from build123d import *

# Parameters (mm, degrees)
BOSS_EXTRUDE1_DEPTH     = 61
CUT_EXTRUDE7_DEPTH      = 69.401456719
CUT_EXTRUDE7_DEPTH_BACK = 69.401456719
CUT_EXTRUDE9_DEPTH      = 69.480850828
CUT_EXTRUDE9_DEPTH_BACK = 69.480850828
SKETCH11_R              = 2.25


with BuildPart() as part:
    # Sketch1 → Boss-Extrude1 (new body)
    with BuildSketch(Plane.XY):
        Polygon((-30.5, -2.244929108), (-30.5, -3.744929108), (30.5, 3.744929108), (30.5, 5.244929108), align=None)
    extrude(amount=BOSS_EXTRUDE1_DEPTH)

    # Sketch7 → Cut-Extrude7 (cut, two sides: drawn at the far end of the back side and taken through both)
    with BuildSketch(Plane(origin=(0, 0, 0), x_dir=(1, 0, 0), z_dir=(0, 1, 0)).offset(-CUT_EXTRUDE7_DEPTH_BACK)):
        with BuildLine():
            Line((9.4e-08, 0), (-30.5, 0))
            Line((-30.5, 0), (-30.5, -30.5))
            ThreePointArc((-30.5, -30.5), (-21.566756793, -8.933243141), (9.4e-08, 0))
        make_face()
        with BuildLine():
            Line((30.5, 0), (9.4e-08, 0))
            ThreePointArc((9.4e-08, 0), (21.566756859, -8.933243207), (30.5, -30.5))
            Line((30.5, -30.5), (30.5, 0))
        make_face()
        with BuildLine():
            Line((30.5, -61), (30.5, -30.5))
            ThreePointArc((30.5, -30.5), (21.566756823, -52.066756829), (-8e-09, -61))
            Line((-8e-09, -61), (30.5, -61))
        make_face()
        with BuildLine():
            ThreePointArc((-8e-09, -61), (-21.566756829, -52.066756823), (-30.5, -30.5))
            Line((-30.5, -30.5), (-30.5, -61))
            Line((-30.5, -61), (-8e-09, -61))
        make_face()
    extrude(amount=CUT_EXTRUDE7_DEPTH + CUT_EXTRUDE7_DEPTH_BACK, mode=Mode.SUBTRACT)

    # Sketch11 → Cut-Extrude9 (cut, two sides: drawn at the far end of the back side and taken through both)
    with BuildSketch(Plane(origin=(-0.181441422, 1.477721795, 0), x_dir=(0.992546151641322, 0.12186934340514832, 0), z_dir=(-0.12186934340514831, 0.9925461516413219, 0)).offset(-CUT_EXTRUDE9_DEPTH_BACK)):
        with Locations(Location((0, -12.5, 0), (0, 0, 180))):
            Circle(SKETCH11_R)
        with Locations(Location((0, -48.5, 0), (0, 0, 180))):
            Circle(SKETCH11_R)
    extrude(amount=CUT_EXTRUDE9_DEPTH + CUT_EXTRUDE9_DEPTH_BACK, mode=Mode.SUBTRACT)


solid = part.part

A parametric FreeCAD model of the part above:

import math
import FreeCAD as App
import Part
import Sketcher
from FreeCAD import Vector
Q = App.Units.Quantity

doc = App.newDocument("Part")
body = doc.addObject("PartDesign::Body", "Body")

sketch1 = body.newObject("Sketcher::SketchObject", "Sketch")
sketch1.AttachmentSupport = (doc.getObject("XY_Plane"), [""])
sketch1.MapMode = "FlatFace"
sketch1.addGeometry(Part.LineSegment(Vector(-30.5, -2.2, 0), Vector(-30.5, -3.7, 0)), False)
sketch1.addGeometry(Part.LineSegment(Vector(-30.5, -3.7, 0), Vector(30.5, 3.7, 0)), False)
sketch1.addGeometry(Part.LineSegment(Vector(30.5, 3.7, 0), Vector(30.5, 5.2, 0)), False)
sketch1.addGeometry(Part.LineSegment(Vector(30.5, 5.2, 0), Vector(-30.5, -2.2, 0)), False)
sketch1.addConstraint(Sketcher.Constraint("Coincident", 0, 2, 1, 1))
sketch1.addConstraint(Sketcher.Constraint("Coincident", 1, 2, 2, 1))
sketch1.addConstraint(Sketcher.Constraint("Coincident", 2, 2, 3, 1))
sketch1.addConstraint(Sketcher.Constraint("Coincident", 3, 2, 0, 1))
sketch1.addConstraint(Sketcher.Constraint("Vertical", 0))
sketch1.addConstraint(Sketcher.Constraint("Vertical", 2))
sketch1.addConstraint(Sketcher.Constraint("Symmetric", 0, 2, 1, 2, -1, 1))
sketch1.addConstraint(Sketcher.Constraint("Parallel", 1, 3))
sketch1.addConstraint(Sketcher.Constraint("Angle", 1, Q("7 deg")))
sketch1.addConstraint(Sketcher.Constraint("DistanceY", 0, 2, 0, 1, 1.5))
sketch1.addConstraint(Sketcher.Constraint("DistanceX", 0, 2, 1, 2, 61.0))
pad1 = body.newObject("PartDesign::Pad", "Pad")
pad1.Profile = sketch1
pad1.Length = 61

sketch2 = body.newObject("Sketcher::SketchObject", "Sketch001")
sketch2.AttachmentSupport = (doc.getObject("XZ_Plane"), [""])
sketch2.MapMode = "FlatFace"
sketch2.addGeometry(Part.LineSegment(Vector(0, 0, 0), Vector(-30, 0, 0)), False)
sketch2.addGeometry(Part.LineSegment(Vector(-30, 0, 0), Vector(-30, 30, 0)), False)
sketch2.addGeometry(Part.ArcOfCircle(Part.Circle(Vector(0, 31, 0), Vector(0, 0, 1), 31), math.radians(-180), math.radians(-90)), False)
sketch2.addGeometry(Part.LineSegment(Vector(30, 0, 0), Vector(0, 0, 0)), False)
sketch2.addGeometry(Part.ArcOfCircle(Part.Circle(Vector(0, 31, 0), Vector(0, 0, 1), 31), math.radians(-90), math.radians(0)), False)
sketch2.addGeometry(Part.LineSegment(Vector(30, 30, 0), Vector(30, 0, 0)), False)
sketch2.addGeometry(Part.LineSegment(Vector(30, 61, 0), Vector(30, 30, 0)), False)
sketch2.addGeometry(Part.ArcOfCircle(Part.Circle(Vector(0, 30, 0), Vector(0, 0, 1), 31), math.radians(0), math.radians(90)), False)
sketch2.addGeometry(Part.LineSegment(Vector(0, 61, 0), Vector(30, 61, 0)), False)
sketch2.addGeometry(Part.ArcOfCircle(Part.Circle(Vector(0, 30, 0), Vector(0, 0, 1), 31), math.radians(90), math.radians(180)), False)
sketch2.addGeometry(Part.LineSegment(Vector(-30, 30, 0), Vector(-30, 61, 0)), False)
sketch2.addGeometry(Part.LineSegment(Vector(-30, 61, 0), Vector(0, 61, 0)), False)
sketch2.addConstraint(Sketcher.Constraint("Coincident", 0, 2, 1, 1))
sketch2.addConstraint(Sketcher.Constraint("Tangent", 1, 2, 2, 1))
sketch2.addConstraint(Sketcher.Constraint("Tangent", 2, 2, 0, 1))
sketch2.addConstraint(Sketcher.Constraint("Tangent", 3, 2, 4, 1))
sketch2.addConstraint(Sketcher.Constraint("Tangent", 4, 2, 5, 1))
sketch2.addConstraint(Sketcher.Constraint("Coincident", 5, 2, 3, 1))
sketch2.addConstraint(Sketcher.Constraint("Tangent", 6, 2, 7, 1))
sketch2.addConstraint(Sketcher.Constraint("Tangent", 7, 2, 8, 1))
sketch2.addConstraint(Sketcher.Constraint("Coincident", 8, 2, 6, 1))
sketch2.addConstraint(Sketcher.Constraint("Tangent", 9, 2, 10, 1))
sketch2.addConstraint(Sketcher.Constraint("Coincident", 10, 2, 11, 1))
sketch2.addConstraint(Sketcher.Constraint("Tangent", 11, 2, 9, 1))
sketch2.addConstraint(Sketcher.Constraint("Horizontal", 0))
sketch2.addConstraint(Sketcher.Constraint("Vertical", 1))
sketch2.addConstraint(Sketcher.Constraint("Horizontal", 3))
sketch2.addConstraint(Sketcher.Constraint("Vertical", 5))
sketch2.addConstraint(Sketcher.Constraint("Vertical", 6))
sketch2.addConstraint(Sketcher.Constraint("Horizontal", 8))
sketch2.addConstraint(Sketcher.Constraint("Vertical", 10))
sketch2.addConstraint(Sketcher.Constraint("Horizontal", 11))
sketch2.addConstraint(Sketcher.Constraint("Coincident", 2, 2, -1, 1))
sketch2.addConstraint(Sketcher.Constraint("Coincident", 3, 2, -1, 1))
sketch2.addConstraint(Sketcher.Constraint("Coincident", 7, 3, 2, 3))
sketch2.addConstraint(Sketcher.Constraint("Coincident", 9, 3, 2, 3))
sketch2.addConstraint(Sketcher.Constraint("Coincident", 6, 2, 4, 2))
sketch2.addConstraint(Sketcher.Constraint("Equal", 7, 9))
sketch2.addConstraint(Sketcher.Constraint("Radius", 2, 30.5))
pocket1 = body.newObject("PartDesign::Pocket", "Pocket")
pocket1.Profile = sketch2
pocket1.Type = "ThroughAll"
pocket1.Midplane = True

sketch3 = body.newObject("Sketcher::SketchObject", "Sketch002")
sketch3.Placement = App.Placement(Vector(-0.181441, 1.477722, 0), App.Rotation(Vector(0.992546152, 0.121869343, 0), Vector(0, 0, -1.000000001), Vector(-0.121869343, 0.992546152, 0), "ZXY"))
sketch3.addGeometry(Part.Circle(Vector(0, -12.5, 0), Vector(0, 0, 1), 2.2), False)
sketch3.addGeometry(Part.Circle(Vector(0, -48.5, 0), Vector(0, 0, 1), 2.2), False)
sketch3.addConstraint(Sketcher.Constraint("Equal", 0, 1))
sketch3.addConstraint(Sketcher.Constraint("PointOnObject", 0, 3, -2))
sketch3.addConstraint(Sketcher.Constraint("PointOnObject", 1, 3, -2))
sketch3.addConstraint(Sketcher.Constraint("Diameter", 0, 4.5))
sketch3.addConstraint(Sketcher.Constraint("DistanceY", 1, 3, 0, 3, 36.0))
sketch3.addConstraint(Sketcher.Constraint("DistanceY", 0, 3, -1, 1, 12.5))
pocket2 = body.newObject("PartDesign::Pocket", "Pocket001")
pocket2.Profile = sketch3
pocket2.Type = "ThroughAll"
pocket2.Midplane = True

doc.recompute()
